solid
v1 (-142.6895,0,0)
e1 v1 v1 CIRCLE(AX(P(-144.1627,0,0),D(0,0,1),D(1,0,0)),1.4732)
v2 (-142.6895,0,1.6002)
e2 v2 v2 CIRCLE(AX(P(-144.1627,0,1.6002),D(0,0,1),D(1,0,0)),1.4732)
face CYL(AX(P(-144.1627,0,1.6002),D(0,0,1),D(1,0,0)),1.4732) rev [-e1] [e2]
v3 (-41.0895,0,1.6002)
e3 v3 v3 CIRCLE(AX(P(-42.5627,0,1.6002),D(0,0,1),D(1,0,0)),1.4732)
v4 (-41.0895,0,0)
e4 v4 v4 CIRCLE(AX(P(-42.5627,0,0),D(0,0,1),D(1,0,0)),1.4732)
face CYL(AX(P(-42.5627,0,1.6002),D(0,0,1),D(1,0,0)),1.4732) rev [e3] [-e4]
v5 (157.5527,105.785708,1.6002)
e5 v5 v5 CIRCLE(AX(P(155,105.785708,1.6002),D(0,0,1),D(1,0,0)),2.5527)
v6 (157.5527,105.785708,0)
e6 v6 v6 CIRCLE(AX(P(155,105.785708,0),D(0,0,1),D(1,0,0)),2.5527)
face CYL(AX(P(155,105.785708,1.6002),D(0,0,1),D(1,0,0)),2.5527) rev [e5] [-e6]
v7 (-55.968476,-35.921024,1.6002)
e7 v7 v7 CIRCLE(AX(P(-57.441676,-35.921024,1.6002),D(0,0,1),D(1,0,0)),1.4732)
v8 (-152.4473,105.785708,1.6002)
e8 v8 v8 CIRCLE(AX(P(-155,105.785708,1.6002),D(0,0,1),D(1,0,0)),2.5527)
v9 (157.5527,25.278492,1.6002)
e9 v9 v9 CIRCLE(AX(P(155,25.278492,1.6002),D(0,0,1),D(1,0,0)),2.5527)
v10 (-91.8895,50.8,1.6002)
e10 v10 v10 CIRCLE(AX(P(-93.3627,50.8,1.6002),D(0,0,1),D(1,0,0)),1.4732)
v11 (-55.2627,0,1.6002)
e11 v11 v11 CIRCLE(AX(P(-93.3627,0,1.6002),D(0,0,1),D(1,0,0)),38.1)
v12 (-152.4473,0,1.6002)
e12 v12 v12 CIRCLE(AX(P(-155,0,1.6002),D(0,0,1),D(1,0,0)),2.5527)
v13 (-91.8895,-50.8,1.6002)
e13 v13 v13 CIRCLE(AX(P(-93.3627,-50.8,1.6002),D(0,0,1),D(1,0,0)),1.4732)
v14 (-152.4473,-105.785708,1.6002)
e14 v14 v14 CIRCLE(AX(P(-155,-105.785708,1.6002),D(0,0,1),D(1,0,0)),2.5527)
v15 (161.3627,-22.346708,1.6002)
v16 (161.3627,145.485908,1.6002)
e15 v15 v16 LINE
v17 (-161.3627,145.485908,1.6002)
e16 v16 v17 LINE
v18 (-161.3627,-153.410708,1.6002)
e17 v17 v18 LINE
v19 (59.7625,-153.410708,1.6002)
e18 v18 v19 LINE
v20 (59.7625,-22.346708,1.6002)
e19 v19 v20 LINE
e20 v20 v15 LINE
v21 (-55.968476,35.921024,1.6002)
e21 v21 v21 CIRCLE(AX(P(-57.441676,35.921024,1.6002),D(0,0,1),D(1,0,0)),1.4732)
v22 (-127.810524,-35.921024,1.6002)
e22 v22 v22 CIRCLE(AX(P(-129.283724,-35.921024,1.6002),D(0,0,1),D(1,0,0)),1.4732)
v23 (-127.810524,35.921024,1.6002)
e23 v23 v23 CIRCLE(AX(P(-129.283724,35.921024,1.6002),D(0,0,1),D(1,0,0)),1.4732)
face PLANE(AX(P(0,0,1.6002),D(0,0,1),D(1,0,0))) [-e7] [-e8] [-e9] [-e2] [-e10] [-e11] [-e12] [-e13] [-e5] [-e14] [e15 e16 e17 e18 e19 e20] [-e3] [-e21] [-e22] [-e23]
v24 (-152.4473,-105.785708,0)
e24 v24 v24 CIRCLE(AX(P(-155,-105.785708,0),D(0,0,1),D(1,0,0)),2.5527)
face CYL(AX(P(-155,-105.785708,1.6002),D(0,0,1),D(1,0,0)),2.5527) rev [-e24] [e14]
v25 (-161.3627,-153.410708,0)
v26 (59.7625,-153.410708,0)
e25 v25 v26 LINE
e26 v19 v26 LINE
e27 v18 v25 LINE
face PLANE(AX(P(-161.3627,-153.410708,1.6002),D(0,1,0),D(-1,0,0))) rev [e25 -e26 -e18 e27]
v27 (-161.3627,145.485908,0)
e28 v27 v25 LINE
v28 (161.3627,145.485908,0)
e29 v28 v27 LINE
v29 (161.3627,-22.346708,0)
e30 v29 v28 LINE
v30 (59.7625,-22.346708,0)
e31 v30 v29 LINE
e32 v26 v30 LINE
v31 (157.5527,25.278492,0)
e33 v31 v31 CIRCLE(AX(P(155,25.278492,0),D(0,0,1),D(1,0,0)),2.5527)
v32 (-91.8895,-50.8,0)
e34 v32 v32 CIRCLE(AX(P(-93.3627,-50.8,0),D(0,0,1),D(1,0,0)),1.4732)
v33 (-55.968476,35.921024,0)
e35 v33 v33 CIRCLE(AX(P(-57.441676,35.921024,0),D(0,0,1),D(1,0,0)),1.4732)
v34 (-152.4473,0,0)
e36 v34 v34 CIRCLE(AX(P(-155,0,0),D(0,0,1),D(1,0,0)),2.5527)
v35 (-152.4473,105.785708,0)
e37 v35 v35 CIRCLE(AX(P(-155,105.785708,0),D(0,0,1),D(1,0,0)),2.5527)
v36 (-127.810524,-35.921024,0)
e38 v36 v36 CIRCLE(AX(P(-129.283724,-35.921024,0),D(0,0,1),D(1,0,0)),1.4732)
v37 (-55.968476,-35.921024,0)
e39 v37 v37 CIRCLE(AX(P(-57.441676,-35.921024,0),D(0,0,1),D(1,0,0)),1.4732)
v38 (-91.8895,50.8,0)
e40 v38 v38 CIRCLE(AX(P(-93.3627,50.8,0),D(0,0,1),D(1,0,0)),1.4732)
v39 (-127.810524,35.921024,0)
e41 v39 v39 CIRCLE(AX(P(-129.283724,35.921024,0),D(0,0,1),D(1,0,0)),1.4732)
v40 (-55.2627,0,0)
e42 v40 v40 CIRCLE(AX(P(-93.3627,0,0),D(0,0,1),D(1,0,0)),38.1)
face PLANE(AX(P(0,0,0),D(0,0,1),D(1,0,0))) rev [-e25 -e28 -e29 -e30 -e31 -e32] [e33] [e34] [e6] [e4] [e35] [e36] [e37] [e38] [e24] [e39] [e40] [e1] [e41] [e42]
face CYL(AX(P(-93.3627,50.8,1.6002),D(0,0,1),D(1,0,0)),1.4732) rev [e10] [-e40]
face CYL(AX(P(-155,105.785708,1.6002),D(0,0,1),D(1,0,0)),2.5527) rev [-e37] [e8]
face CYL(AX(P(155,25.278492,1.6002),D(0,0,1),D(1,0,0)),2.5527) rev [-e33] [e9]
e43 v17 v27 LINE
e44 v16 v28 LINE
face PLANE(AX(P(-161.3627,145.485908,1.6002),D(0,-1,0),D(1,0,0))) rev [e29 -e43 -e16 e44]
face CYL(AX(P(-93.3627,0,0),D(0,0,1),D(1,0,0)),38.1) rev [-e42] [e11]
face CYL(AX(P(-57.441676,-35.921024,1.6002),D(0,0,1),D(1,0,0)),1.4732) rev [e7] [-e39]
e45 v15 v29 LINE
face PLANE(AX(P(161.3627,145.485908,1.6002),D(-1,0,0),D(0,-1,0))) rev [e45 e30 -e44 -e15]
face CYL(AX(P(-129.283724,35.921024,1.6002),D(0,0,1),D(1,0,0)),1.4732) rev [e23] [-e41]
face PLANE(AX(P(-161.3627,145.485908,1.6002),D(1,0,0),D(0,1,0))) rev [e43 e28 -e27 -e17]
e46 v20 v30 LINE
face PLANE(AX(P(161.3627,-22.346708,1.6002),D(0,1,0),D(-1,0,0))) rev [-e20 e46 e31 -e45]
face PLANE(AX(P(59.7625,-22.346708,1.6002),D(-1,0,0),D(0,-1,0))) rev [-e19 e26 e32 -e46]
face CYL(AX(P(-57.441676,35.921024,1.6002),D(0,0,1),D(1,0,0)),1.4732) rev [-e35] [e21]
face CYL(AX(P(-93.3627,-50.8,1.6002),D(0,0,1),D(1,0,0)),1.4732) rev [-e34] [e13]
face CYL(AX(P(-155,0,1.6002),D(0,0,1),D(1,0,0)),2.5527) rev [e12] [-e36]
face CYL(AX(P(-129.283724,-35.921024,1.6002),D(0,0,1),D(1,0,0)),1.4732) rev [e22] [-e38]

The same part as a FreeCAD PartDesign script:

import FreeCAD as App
import Part
import Sketcher
Q = App.Units.Quantity

doc = App.newDocument("Part")
params = doc.addObject("Spreadsheet::Sheet", "Params")
for row, (alias, value) in enumerate([
    ("sketch1_height", "5.16 in"),
    ("pad1_length", "0.063 in"),
    ("sketch2_diameter", "3 in"),
    ("sketch3_width", "0.058 in"),
    ("groove_angle", "360 deg"),
    ("sketch4_diameter", "0.201 in"),
    ("hole_diameter", "0.201 in"),
    ("hole_depth", "129.53 mm"),
], start=1):
    params.set(f"A{row}", alias)
    params.set(f"B{row}", "=" + value)
    params.setAlias(f"B{row}", alias)

body = doc.addObject("PartDesign::Body", "Body")

# Sketch on XY plane
sketch1 = doc.addObject("Sketcher::SketchObject", "Sketch")
body.addObject(sketch1)
sketch1.AttachmentSupport = (doc.XY_Plane, [""])
sketch1.MapMode = "FlatFace"
sketch1.addGeometry([
    Part.LineSegment(App.Vector(60, -22, 0), App.Vector(161, -22, 0)),  # 0
    Part.LineSegment(App.Vector(161, -22, 0), App.Vector(161, 145, 0)),  # 1
    Part.LineSegment(App.Vector(161, 145, 0), App.Vector(-161, 145, 0)),  # 2
    Part.LineSegment(App.Vector(-161, 145, 0), App.Vector(-161, -153, 0)),  # 3
    Part.LineSegment(App.Vector(-161, -153, 0), App.Vector(60, -153, 0)),  # 4
    Part.LineSegment(App.Vector(60, -153, 0), App.Vector(60, -22, 0)),  # 5
], False)
sketch1.addConstraint([
    Sketcher.Constraint("Coincident", 0, 2, 1, 1),
    Sketcher.Constraint("Coincident", 1, 2, 2, 1),
    Sketcher.Constraint("Coincident", 2, 2, 3, 1),
    Sketcher.Constraint("Coincident", 3, 2, 4, 1),
    Sketcher.Constraint("Coincident", 4, 2, 5, 1),
    Sketcher.Constraint("Coincident", 5, 2, 0, 1),
    Sketcher.Constraint("Horizontal", 0),
    Sketcher.Constraint("Vertical", 1),
    Sketcher.Constraint("Horizontal", 2),
    Sketcher.Constraint("Vertical", 3),
    Sketcher.Constraint("Horizontal", 4),
    Sketcher.Constraint("Vertical", 5),
    Sketcher.Constraint("DistanceY", 5, 1, 5, 2, Q("5.16 in")),
    Sketcher.Constraint("DistanceX", 0, 1, 0, 2, 101.6002),
    Sketcher.Constraint("DistanceX", 2, 2, 2, 1, 322.7254),
    Sketcher.Constraint("DistanceX", -1, 1, 0, 2, 161.3627),
    Sketcher.Constraint("DistanceY", 1, 1, 1, 2, 167.832617),
    Sketcher.Constraint("DistanceY", 0, 2, -1, 1, 22.346708),
])
sketch1.setExpression("Constraints[12]", "Params.sketch1_height")
pad1 = doc.addObject("PartDesign::Pad", "Pad")
body.addObject(pad1)
pad1.Profile = sketch1
pad1.setExpression("Length", "Params.pad1_length")

# Sketch on XY plane
sketch2 = doc.addObject("Sketcher::SketchObject", "Sketch001")
body.addObject(sketch2)
sketch2.AttachmentSupport = (doc.XY_Plane, [""])
sketch2.MapMode = "FlatFace"
sketch2.AttachmentOffset = App.Placement(App.Vector(0, 0, 0.063 * 25.4), App.Rotation())
sketch2.addGeometry(Part.Circle(App.Vector(-93, 0, 0), App.Vector(0, 0, 1), 38), False)
sketch2.addConstraint([
    Sketcher.Constraint("PointOnObject", 0, 3, -1),
    Sketcher.Constraint("Diameter", 0, Q("3 in")),
    Sketcher.Constraint("DistanceX", 0, 3, -1, 1, 93.3627),
])
sketch2.setExpression("Constraints[1]", "Params.sketch2_diameter")
pocket1 = doc.addObject("PartDesign::Pocket", "Pocket")
body.addObject(pocket1)
pocket1.Profile = sketch2
pocket1.Type = "ThroughAll"

# Sketch on YZ plane
sketch3 = doc.addObject("Sketcher::SketchObject", "Sketch002")
body.addObject(sketch3)
sketch3.AttachmentSupport = (doc.YZ_Plane, [""])
sketch3.MapMode = "FlatFace"
sketch3.AttachmentOffset = App.Placement(App.Vector(0, 0, -93.3627), App.Rotation())
sketch3.addGeometry([
    Part.LineSegment(App.Vector(50.8, -172.3, 0), App.Vector(50.8, 1.6, 0)),
    Part.LineSegment(App.Vector(50.8, 1.6, 0), App.Vector(49.3, 1.6, 0)),
    Part.LineSegment(App.Vector(49.3, 1.6, 0), App.Vector(49.3, -171.4, 0)),
    Part.LineSegment(App.Vector(49.3, -171.4, 0), App.Vector(50.8, -172.3, 0)),
], False)
sketch3.addGeometry(Part.LineSegment(App.Vector(50.8, 1.6, 0), App.Vector(50.8, -172.3, 0)), True)  # axis
sketch3.addConstraint([
    Sketcher.Constraint("Coincident", 0, 2, 1, 1),
    Sketcher.Constraint("Coincident", 1, 2, 2, 1),
    Sketcher.Constraint("Coincident", 2, 2, 3, 1),
    Sketcher.Constraint("Coincident", 3, 2, 0, 1),
    Sketcher.Constraint("Vertical", 0),
    Sketcher.Constraint("Horizontal", 1),
    Sketcher.Constraint("Vertical", 2),
    Sketcher.Constraint("Vertical", 4),
    Sketcher.Constraint("Coincident", 4, 1, 0, 2),
    Sketcher.Constraint("Equal", 0, 4),
    Sketcher.Constraint("DistanceX", -1, 1, 0, 2, Q("2 in")),
    Sketcher.Constraint("Angle", 3, Q("-31 deg")),
    Sketcher.Constraint("DistanceX", 1, 2, 1, 1, Q("0.058 in")),
    Sketcher.Constraint("DistanceY", -1, 1, 0, 2, Q("0.063 in")),
    Sketcher.Constraint("DistanceY", 2, 2, 2, 1, 172.97),
])
sketch3.setExpression("Constraints[12]", "Params.sketch3_width")
groove = doc.addObject("PartDesign::Groove", "Groove")
body.addObject(groove)
groove.Profile = sketch3
groove.ReferenceAxis = (sketch3, ["Axis0"])
groove.setExpression("Angle", "Params.groove_angle")
doc.recompute()

datumline = doc.addObject("PartDesign::Line", "DatumLine")
body.addObject(datumline)
datumline.Placement = App.Placement(App.Vector(-93.3627, 0, 0), App.Rotation(App.Vector(0, 0, 1), App.Vector(0, 0, 1)))
polarpattern = doc.addObject("PartDesign::PolarPattern", "PolarPattern")
body.addObject(polarpattern)
polarpattern.Originals = [groove]
polarpattern.Axis = (datumline, [""])
polarpattern.Angle = 360
polarpattern.Occurrences = 8
body.Tip = polarpattern

# Sketch on XY plane
sketch4 = doc.addObject("Sketcher::SketchObject", "Sketch003")
body.addObject(sketch4)
sketch4.AttachmentSupport = (doc.XY_Plane, [""])
sketch4.MapMode = "FlatFace"
sketch4.AttachmentOffset = App.Placement(App.Vector(0, 0, 0.063 * 25.4), App.Rotation())
sketch4.addGeometry([
    Part.Circle(App.Vector(-155, 105.8, 0), App.Vector(0, 0, 1), 2.6),  # 0
    Part.Circle(App.Vector(155, 105.8, 0), App.Vector(0, 0, 1), 2.6),  # 1
    Part.Circle(App.Vector(-155, -105.8, 0), App.Vector(0, 0, 1), 2.6),  # 2
    Part.Circle(App.Vector(155, 25.3, 0), App.Vector(0, 0, 1), 2.6),  # 3
    Part.Circle(App.Vector(-155, 0, 0), App.Vector(0, 0, 1), 2.6),  # 4
], False)
sketch4.addConstraint([
    Sketcher.Constraint("Equal", 0, 1),
    Sketcher.Constraint("Equal", 1, 2),
    Sketcher.Constraint("Equal", 2, 3),
    Sketcher.Constraint("Equal", 3, 4),
    Sketcher.Constraint("Symmetric", 1, 3, 2, 3, -1, 1),
    Sketcher.Constraint("Symmetric", 0, 3, 1, 3, -2),
    Sketcher.Constraint("PointOnObject", 4, 3, -1),
    Sketcher.Constraint("Vertical", 1, 3, 3, 3),
    Sketcher.Constraint("Vertical", 2, 3, 4, 3),
    Sketcher.Constraint("Diameter", 0, Q("0.201 in")),
    Sketcher.Constraint("DistanceX", 0, 3, -1, 1, 155.0),
    Sketcher.Constraint("DistanceY", 2, 3, 3, 3, 131.0642),
    Sketcher.Constraint("DistanceY", -1, 1, 0, 3, 105.785708),
])
sketch4.setExpression("Constraints[9]", "Params.sketch4_diameter")
doc.recompute()
hole = doc.addObject("PartDesign::Hole", "Hole")
body.addObject(hole)
hole.Profile = sketch4
hole.ThreadType = "None"
hole.setExpression("Diameter", "Params.hole_diameter")
hole.DepthType = "Dimension"
hole.setExpression("Depth", "Params.hole_depth")
hole.DrillPoint = "Angled"
hole.DrillPointAngle = 118

doc.recompute()
